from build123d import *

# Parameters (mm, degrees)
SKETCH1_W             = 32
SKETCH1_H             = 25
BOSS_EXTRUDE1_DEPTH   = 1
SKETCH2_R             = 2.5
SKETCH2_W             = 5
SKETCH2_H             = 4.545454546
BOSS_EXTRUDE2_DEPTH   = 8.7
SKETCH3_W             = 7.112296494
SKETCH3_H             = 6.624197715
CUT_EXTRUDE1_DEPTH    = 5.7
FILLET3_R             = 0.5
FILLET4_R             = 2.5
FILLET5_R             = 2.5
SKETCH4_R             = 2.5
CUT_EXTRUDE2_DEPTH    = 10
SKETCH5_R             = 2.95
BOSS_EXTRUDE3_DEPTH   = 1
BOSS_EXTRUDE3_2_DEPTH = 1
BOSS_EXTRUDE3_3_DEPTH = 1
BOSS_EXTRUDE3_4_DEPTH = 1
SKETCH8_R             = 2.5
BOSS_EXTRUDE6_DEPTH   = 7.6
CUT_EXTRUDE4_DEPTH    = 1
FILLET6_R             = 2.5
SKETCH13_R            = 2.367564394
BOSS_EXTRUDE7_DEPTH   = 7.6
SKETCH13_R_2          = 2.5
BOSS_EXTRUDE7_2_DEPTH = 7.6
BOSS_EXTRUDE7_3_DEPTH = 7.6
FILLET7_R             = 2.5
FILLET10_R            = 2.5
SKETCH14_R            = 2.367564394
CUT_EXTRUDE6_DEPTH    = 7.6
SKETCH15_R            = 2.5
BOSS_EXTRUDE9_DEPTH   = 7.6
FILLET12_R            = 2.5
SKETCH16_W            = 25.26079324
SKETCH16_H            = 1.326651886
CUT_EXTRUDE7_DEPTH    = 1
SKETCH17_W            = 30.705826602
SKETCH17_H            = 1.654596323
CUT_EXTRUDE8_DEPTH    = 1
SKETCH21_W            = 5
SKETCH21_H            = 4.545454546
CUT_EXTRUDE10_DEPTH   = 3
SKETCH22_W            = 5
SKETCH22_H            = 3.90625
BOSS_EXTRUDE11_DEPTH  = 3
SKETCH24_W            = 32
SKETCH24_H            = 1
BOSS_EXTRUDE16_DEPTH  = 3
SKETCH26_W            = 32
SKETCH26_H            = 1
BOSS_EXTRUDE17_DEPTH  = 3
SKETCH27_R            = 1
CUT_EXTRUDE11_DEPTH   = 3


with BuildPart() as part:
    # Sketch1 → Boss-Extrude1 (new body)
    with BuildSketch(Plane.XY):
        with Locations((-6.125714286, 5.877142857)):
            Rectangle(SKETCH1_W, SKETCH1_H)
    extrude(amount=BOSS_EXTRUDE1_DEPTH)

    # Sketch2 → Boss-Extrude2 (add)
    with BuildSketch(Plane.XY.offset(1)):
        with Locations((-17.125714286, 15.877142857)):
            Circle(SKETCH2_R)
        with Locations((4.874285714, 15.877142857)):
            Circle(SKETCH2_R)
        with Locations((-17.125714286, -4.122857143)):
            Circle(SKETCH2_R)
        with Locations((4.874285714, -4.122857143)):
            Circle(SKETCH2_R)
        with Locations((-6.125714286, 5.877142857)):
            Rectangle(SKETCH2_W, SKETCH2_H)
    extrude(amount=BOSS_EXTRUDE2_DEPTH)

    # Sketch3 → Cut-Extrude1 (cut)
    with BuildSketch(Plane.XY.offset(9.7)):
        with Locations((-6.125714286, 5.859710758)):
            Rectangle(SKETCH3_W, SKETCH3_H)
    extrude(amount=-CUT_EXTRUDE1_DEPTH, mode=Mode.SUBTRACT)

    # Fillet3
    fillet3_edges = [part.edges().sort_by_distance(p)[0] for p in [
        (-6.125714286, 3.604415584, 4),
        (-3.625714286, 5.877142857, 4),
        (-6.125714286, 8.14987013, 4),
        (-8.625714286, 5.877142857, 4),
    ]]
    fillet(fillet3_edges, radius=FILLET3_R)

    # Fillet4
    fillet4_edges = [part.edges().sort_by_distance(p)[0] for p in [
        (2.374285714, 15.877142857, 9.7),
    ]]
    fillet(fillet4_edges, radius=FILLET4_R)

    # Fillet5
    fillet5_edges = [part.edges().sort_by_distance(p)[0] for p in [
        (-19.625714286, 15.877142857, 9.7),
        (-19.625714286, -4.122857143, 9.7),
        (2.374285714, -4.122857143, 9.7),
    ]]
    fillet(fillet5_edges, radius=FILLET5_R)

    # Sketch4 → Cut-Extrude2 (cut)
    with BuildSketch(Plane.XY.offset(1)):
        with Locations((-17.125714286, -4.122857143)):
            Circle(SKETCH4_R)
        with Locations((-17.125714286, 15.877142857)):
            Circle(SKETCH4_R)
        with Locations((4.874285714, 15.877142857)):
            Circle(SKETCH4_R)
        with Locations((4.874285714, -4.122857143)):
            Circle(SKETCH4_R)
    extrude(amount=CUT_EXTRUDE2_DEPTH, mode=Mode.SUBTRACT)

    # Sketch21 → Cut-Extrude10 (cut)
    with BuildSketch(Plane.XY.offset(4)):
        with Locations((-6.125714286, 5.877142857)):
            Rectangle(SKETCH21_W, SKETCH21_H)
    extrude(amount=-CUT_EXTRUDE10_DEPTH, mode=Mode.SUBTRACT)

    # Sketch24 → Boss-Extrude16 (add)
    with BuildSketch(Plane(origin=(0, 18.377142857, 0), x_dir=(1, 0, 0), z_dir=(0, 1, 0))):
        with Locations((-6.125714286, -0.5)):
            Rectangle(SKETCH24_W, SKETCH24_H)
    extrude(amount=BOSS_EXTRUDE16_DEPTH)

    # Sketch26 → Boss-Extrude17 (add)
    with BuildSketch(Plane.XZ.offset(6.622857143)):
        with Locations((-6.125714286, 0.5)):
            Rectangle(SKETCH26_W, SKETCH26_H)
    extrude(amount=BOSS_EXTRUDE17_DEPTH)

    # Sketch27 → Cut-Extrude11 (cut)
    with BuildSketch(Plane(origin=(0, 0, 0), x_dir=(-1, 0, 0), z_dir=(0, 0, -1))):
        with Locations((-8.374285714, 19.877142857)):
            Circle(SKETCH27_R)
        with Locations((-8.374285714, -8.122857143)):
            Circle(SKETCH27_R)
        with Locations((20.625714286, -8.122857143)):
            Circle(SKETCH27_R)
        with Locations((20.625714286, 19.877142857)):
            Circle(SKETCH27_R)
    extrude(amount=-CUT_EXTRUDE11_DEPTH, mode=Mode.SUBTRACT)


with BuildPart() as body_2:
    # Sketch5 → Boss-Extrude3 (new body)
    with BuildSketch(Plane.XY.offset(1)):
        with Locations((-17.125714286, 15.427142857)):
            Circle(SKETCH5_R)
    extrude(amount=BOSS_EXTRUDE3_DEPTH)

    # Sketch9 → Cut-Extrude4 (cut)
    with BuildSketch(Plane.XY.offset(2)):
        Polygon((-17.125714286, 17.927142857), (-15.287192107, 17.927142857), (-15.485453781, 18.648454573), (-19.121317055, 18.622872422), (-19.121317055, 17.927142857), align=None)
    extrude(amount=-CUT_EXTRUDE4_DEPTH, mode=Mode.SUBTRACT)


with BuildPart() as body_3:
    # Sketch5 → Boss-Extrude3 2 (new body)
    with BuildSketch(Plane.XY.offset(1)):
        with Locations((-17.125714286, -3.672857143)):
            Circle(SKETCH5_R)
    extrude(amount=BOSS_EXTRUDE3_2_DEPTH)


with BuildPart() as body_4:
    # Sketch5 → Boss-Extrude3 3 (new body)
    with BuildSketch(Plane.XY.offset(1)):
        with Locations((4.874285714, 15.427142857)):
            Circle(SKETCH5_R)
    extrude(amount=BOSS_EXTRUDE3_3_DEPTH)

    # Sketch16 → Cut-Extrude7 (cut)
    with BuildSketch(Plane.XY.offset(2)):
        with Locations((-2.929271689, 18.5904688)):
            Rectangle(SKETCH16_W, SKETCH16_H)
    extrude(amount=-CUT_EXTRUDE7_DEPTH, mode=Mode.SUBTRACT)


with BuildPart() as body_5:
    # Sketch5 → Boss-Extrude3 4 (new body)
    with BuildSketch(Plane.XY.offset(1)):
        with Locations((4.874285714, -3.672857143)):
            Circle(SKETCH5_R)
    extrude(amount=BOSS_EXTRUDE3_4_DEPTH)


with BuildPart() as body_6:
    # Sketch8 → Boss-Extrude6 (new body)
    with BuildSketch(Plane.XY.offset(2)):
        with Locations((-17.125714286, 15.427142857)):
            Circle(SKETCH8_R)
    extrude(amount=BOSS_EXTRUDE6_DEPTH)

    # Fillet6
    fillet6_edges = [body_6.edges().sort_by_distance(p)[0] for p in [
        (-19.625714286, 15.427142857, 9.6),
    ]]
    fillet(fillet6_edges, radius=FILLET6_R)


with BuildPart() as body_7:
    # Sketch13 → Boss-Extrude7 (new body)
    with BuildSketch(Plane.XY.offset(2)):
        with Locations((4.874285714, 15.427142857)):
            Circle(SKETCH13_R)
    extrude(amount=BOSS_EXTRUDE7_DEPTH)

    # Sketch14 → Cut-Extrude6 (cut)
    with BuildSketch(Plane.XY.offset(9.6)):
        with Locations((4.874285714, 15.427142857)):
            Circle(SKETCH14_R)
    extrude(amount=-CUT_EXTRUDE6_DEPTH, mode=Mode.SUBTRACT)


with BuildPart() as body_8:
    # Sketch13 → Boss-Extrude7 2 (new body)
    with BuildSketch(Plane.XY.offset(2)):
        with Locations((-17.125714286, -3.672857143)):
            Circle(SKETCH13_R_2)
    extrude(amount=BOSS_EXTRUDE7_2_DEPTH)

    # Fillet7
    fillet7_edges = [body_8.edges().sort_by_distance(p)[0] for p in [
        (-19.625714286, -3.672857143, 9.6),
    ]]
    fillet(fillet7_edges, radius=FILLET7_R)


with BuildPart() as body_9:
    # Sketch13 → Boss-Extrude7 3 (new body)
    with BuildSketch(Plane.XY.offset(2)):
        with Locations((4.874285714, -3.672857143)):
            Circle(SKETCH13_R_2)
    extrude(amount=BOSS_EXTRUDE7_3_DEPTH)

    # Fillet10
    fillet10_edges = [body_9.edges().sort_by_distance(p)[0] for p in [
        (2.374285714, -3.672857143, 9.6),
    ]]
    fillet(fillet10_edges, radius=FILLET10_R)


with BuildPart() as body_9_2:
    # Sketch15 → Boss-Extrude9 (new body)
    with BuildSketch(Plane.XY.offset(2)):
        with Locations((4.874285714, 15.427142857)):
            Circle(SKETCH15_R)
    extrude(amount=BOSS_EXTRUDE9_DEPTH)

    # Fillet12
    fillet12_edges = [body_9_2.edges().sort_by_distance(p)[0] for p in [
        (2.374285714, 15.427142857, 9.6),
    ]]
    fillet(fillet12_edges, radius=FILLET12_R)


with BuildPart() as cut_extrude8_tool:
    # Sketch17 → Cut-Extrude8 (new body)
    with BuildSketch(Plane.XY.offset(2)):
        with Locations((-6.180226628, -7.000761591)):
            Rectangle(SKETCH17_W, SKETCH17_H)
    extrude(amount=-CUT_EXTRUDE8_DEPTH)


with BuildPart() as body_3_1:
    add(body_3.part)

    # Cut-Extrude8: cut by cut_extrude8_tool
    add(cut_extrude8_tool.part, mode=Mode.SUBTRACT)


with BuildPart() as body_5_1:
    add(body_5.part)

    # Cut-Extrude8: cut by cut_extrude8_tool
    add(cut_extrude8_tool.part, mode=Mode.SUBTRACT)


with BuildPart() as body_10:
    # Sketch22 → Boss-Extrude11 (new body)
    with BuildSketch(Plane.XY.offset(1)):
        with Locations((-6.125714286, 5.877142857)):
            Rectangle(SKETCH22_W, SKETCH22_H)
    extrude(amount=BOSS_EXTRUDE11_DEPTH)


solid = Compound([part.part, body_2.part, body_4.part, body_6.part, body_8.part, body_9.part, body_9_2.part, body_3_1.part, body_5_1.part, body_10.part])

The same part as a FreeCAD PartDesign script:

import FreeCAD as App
import Part
import Sketcher

V = App.Vector
Q = App.Units.Quantity


def edges_at(feature, points):
    """Names of the edges that pass closest to the given points."""
    edges = feature.Shape.Edges
    near = lambda p: min(range(len(edges)), key=lambda i: edges[i].distToShape(Part.Vertex(*p))[0])
    return sorted({f"Edge{near(p) + 1}" for p in points})


def add_polygon(sketch, points):
    """Adds a closed chain of lines whose ends are joined by coincident constraints."""
    first, n = sketch.GeometryCount, len(points)
    for a, b in zip(points, points[1:] + points[:1]):
        sketch.addGeometry(Part.LineSegment(App.Vector(*a, 0), App.Vector(*b, 0)), False)
    for i in range(n):
        sketch.addConstraint(Sketcher.Constraint("Coincident", first + i, 2, first + (i + 1) % n, 1))

doc = App.newDocument("Part")
body = doc.addObject("PartDesign::Body", "Body")

sketch1 = body.newObject("Sketcher::SketchObject", "Sketch")
sketch1.AttachmentSupport = (doc.getObject("XY_Plane"), [""])
sketch1.MapMode = "FlatFace"
add_polygon(sketch1, [(-22, 18), (-22, -7), (10, -7), (10, 18)])
sketch1.addConstraint([
    Sketcher.Constraint("Vertical", 0),
    Sketcher.Constraint("Horizontal", 1),
    Sketcher.Constraint("Vertical", 2),
    Sketcher.Constraint("Horizontal", 3),
    Sketcher.Constraint("DistanceX", 1, 1, 1, 2, Q("32 mm")),
    Sketcher.Constraint("DistanceY", 0, 2, 0, 1, Q("25 mm")),
    Sketcher.Constraint("DistanceX", 0, 2, -1, 1, Q("22.125714 mm")),
    Sketcher.Constraint("DistanceY", 0, 2, -1, 1, Q("6.622857 mm")),
])
pad1 = body.newObject("PartDesign::Pad", "Pad")
pad1.Profile = sketch1
pad1.Length = 1

sketch2 = body.newObject("Sketcher::SketchObject", "Sketch001")
sketch2.AttachmentSupport = (doc.getObject("XY_Plane"), [""])
sketch2.MapMode = "FlatFace"
sketch2.AttachmentOffset = App.Placement(V(0, 0, 1), App.Rotation())
sketch2.addGeometry(Part.Circle(V(-17.1, 15.9, 0), V(0, 0, 1), 2.5), False)
sketch2.addGeometry(Part.Circle(V(4.9, 15.9, 0), V(0, 0, 1), 2.5), False)
sketch2.addGeometry(Part.Circle(V(-17.1, -4.1, 0), V(0, 0, 1), 2.5), False)
sketch2.addGeometry(Part.Circle(V(4.9, -4.1, 0), V(0, 0, 1), 2.5), False)
add_polygon(sketch2, [(-8.6, 8.1), (-8.6, 3.6), (-3.6, 3.6), (-3.6, 8.1)])
sketch2.addConstraint([
    Sketcher.Constraint("Vertical", 4),
    Sketcher.Constraint("Horizontal", 5),
    Sketcher.Constraint("Vertical", 6),
    Sketcher.Constraint("Horizontal", 7),
    Sketcher.Constraint("Equal", 0, 1),
    Sketcher.Constraint("Equal", 1, 2),
    Sketcher.Constraint("Equal", 2, 3),
    Sketcher.Constraint("Horizontal", 0, 3, 1, 3),
    Sketcher.Constraint("Horizontal", 2, 3, 3, 3),
    Sketcher.Constraint("Vertical", 0, 3, 2, 3),
    Sketcher.Constraint("Vertical", 1, 3, 3, 3),
    Sketcher.Constraint("Diameter", 0, Q("5 mm")),
    Sketcher.Constraint("DistanceX", 5, 1, 5, 2, Q("5 mm")),
    Sketcher.Constraint("DistanceX", 0, 3, 1, 3, Q("22 mm")),
    Sketcher.Constraint("DistanceY", 2, 3, 0, 3, Q("20 mm")),
    Sketcher.Constraint("DistanceX", 2, 3, 4, 2, Q("8.5 mm")),
    Sketcher.Constraint("DistanceY", 4, 2, 4, 1, Q("4.545455 mm")),
    Sketcher.Constraint("DistanceY", -1, 1, 6, 2, Q("8.14987 mm")),
    Sketcher.Constraint("DistanceX", 0, 3, -1, 1, Q("17.125714 mm")),
    Sketcher.Constraint("DistanceY", -1, 1, 0, 3, Q("15.877143 mm")),
])
pad2 = body.newObject("PartDesign::Pad", "Pad001")
pad2.Profile = sketch2
pad2.Length = 8.7

sketch3 = body.newObject("Sketcher::SketchObject", "Sketch002")
sketch3.AttachmentSupport = (doc.getObject("XY_Plane"), [""])
sketch3.MapMode = "FlatFace"
sketch3.AttachmentOffset = App.Placement(V(0, 0, 9.7), App.Rotation())
add_polygon(sketch3, [(-10, 9), (-10, 3), (-3, 3), (-3, 9)])
sketch3.addConstraint([
    Sketcher.Constraint("Vertical", 0),
    Sketcher.Constraint("Horizontal", 1),
    Sketcher.Constraint("Vertical", 2),
    Sketcher.Constraint("Horizontal", 3),
    Sketcher.Constraint("DistanceX", 1, 1, 1, 2, Q("7.112296 mm")),
    Sketcher.Constraint("DistanceY", 0, 2, 0, 1, Q("6.624198 mm")),
    Sketcher.Constraint("DistanceY", -1, 1, 0, 2, Q("2.547612 mm")),
    Sketcher.Constraint("DistanceX", 0, 2, -1, 1, Q("9.681863 mm")),
])
pocket1 = body.newObject("PartDesign::Pocket", "Pocket")
pocket1.Profile = sketch3
pocket1.Length = 5.7
doc.recompute()

fillet = body.newObject("PartDesign::Fillet", "Fillet")
fillet.Base = (pocket1, edges_at(pocket1, [
    (-6.126, 3.604, 4),
    (-3.626, 5.877, 4),
    (-6.126, 8.15, 4),
    (-8.626, 5.877, 4),
]))
fillet.Radius = 0.5
doc.recompute()

fillet2 = body.newObject("PartDesign::Fillet", "Fillet001")
fillet2.Base = (fillet, edges_at(fillet, [(2.374, 15.877, 9.7)]))
fillet2.Radius = 2.5
doc.recompute()

fillet3 = body.newObject("PartDesign::Fillet", "Fillet002")
fillet3.Base = (fillet2, edges_at(fillet2, [(-19.626, 15.877, 9.7), (-19.626, -4.123, 9.7), (2.374, -4.123, 9.7)]))
fillet3.Radius = 2.5

sketch4 = body.newObject("Sketcher::SketchObject", "Sketch003")
sketch4.AttachmentSupport = (doc.getObject("XY_Plane"), [""])
sketch4.MapMode = "FlatFace"
sketch4.AttachmentOffset = App.Placement(V(0, 0, 1), App.Rotation())
sketch4.addGeometry([
    Part.Circle(V(-17.1, -4.1, 0), V(0, 0, 1), 2.5),
    Part.Circle(V(-17.1, 15.9, 0), V(0, 0, 1), 2.5),
    Part.Circle(V(4.9, 15.9, 0), V(0, 0, 1), 2.5),
    Part.Circle(V(4.9, -4.1, 0), V(0, 0, 1), 2.5),
], False)
sketch4.addConstraint([
    Sketcher.Constraint("Equal", 0, 1),
    Sketcher.Constraint("Equal", 1, 2),
    Sketcher.Constraint("Equal", 2, 3),
    Sketcher.Constraint("Horizontal", 1, 3, 2, 3),
    Sketcher.Constraint("Horizontal", 0, 3, 3, 3),
    Sketcher.Constraint("Vertical", 0, 3, 1, 3),
    Sketcher.Constraint("Vertical", 2, 3, 3, 3),
    Sketcher.Constraint("Diameter", 0, Q("5 mm")),
    Sketcher.Constraint("DistanceY", 0, 3, 1, 3, Q("20 mm")),
    Sketcher.Constraint("DistanceX", 1, 3, 2, 3, Q("22 mm")),
    Sketcher.Constraint("DistanceX", 0, 3, -1, 1, Q("17.125714 mm")),
    Sketcher.Constraint("DistanceY", 0, 3, -1, 1, Q("4.122857 mm")),
])
pocket2 = body.newObject("PartDesign::Pocket", "Pocket001")
pocket2.Profile = sketch4
pocket2.Length = 10
pocket2.Reversed = True

sketch5 = body.newObject("Sketcher::SketchObject", "Sketch004")
sketch5.AttachmentSupport = (doc.getObject("XY_Plane"), [""])
sketch5.MapMode = "FlatFace"
sketch5.AttachmentOffset = App.Placement(V(0, 0, 4), App.Rotation())
add_polygon(sketch5, [(-8.6, 8.1), (-8.6, 3.6), (-3.6, 3.6), (-3.6, 8.1)])
sketch5.addConstraint([
    Sketcher.Constraint("Vertical", 0),
    Sketcher.Constraint("Horizontal", 1),
    Sketcher.Constraint("Vertical", 2),
    Sketcher.Constraint("Horizontal", 3),
    Sketcher.Constraint("DistanceX", 1, 1, 1, 2, Q("5 mm")),
    Sketcher.Constraint("DistanceY", 0, 2, 0, 1, Q("4.545455 mm")),
    Sketcher.Constraint("DistanceY", -1, 1, 2, 2, Q("8.14987 mm")),
    Sketcher.Constraint("DistanceX", 0, 2, -1, 1, Q("8.625714 mm")),
])
pocket3 = body.newObject("PartDesign::Pocket", "Pocket002")
pocket3.Profile = sketch5
pocket3.Length = 3

sketch6 = body.newObject("Sketcher::SketchObject", "Sketch005")
sketch6.AttachmentSupport = (doc.getObject("XZ_Plane"), [""])
sketch6.MapMode = "FlatFace"
sketch6.AttachmentOffset = App.Placement(V(0, 0, -18.377143), App.Rotation())
add_polygon(sketch6, [(-22.1, 0), (-22.1, 1), (9.9, 1), (9.9, 0)])
sketch6.addConstraint([
    Sketcher.Constraint("Vertical", 0),
    Sketcher.Constraint("Horizontal", 1),
    Sketcher.Constraint("Vertical", 2),
    Sketcher.Constraint("Horizontal", 3),
    Sketcher.Constraint("PointOnObject", 2, 2, -1),
    Sketcher.Constraint("DistanceX", 1, 1, 1, 2, Q("32 mm")),
    Sketcher.Constraint("DistanceY", 0, 1, 0, 2, Q("1 mm")),
    Sketcher.Constraint("DistanceX", 0, 2, -1, 1, Q("22.125714 mm")),
])
pad3 = body.newObject("PartDesign::Pad", "Pad002")
pad3.Profile = sketch6
pad3.Length = 3
pad3.Reversed = True

sketch7 = body.newObject("Sketcher::SketchObject", "Sketch006")
sketch7.AttachmentSupport = (doc.getObject("XZ_Plane"), [""])
sketch7.MapMode = "FlatFace"
sketch7.AttachmentOffset = App.Placement(V(0, 0, 6.622857), App.Rotation())
add_polygon(sketch7, [(-22.1, 1), (-22.1, 0), (9.9, 0), (9.9, 1)])
sketch7.addConstraint([
    Sketcher.Constraint("Vertical", 0),
    Sketcher.Constraint("Horizontal", 1),
    Sketcher.Constraint("Vertical", 2),
    Sketcher.Constraint("Horizontal", 3),
    Sketcher.Constraint("PointOnObject", 0, 2, -1),
    Sketcher.Constraint("DistanceX", 1, 1, 1, 2, Q("32 mm")),
    Sketcher.Constraint("DistanceY", 0, 2, 0, 1, Q("1 mm")),
    Sketcher.Constraint("DistanceX", 0, 2, -1, 1, Q("22.125714 mm")),
])
pad4 = body.newObject("PartDesign::Pad", "Pad003")
pad4.Profile = sketch7
pad4.Length = 3

sketch8 = body.newObject("Sketcher::SketchObject", "Sketch007")
sketch8.AttachmentSupport = (doc.getObject("XY_Plane"), [""])
sketch8.MapMode = "FlatFace"
sketch8.addGeometry([
    Part.Circle(V(8.4, 19.9, 0), V(0, 0, 1), 1),
    Part.Circle(V(8.4, -8.1, 0), V(0, 0, 1), 1),
    Part.Circle(V(-20.6, -8.1, 0), V(0, 0, 1), 1),
    Part.Circle(V(-20.6, 19.9, 0), V(0, 0, 1), 1),
], False)
sketch8.addConstraint([
    Sketcher.Constraint("Equal", 0, 1),
    Sketcher.Constraint("Equal", 1, 2),
    Sketcher.Constraint("Equal", 2, 3),
    Sketcher.Constraint("Horizontal", 1, 3, 2, 3),
    Sketcher.Constraint("Horizontal", 0, 3, 3, 3),
    Sketcher.Constraint("Vertical", 0, 3, 1, 3),
    Sketcher.Constraint("Vertical", 2, 3, 3, 3),
    Sketcher.Constraint("Diameter", 0, Q("2 mm")),
    Sketcher.Constraint("DistanceY", 1, 3, 0, 3, Q("28 mm")),
    Sketcher.Constraint("DistanceX", 2, 3, 1, 3, Q("29 mm")),
    Sketcher.Constraint("DistanceX", -1, 1, 0, 3, Q("8.374286 mm")),
    Sketcher.Constraint("DistanceY", -1, 1, 0, 3, Q("19.877143 mm")),
])
pocket4 = body.newObject("PartDesign::Pocket", "Pocket003")
pocket4.Profile = sketch8
pocket4.Length = 3
pocket4.Reversed = True
body2 = doc.addObject("PartDesign::Body", "Body001")

sketch9 = body2.newObject("Sketcher::SketchObject", "Sketch008")
sketch9.AttachmentSupport = (doc.getObject("XY_Plane001"), [""])
sketch9.MapMode = "FlatFace"
sketch9.AttachmentOffset = App.Placement(V(0, 0, 1), App.Rotation())
sketch9.addGeometry(Part.Circle(V(-17.1, 15.4, 0), V(0, 0, 1), 3), False)
sketch9.addConstraint([
    Sketcher.Constraint("Diameter", 0, Q("5.9 mm")),
    Sketcher.Constraint("DistanceX", 0, 3, -1, 1, Q("17.125714 mm")),
    Sketcher.Constraint("DistanceY", -1, 1, 0, 3, Q("15.427143 mm")),
])
pad5 = body2.newObject("PartDesign::Pad", "Pad004")
pad5.Profile = sketch9
pad5.Length = 1

sketch10 = body2.newObject("Sketcher::SketchObject", "Sketch009")
sketch10.AttachmentSupport = (doc.getObject("XY_Plane001"), [""])
sketch10.MapMode = "FlatFace"
sketch10.AttachmentOffset = App.Placement(V(0, 0, 2), App.Rotation())
add_polygon(sketch10, [(-15.3, 17.9), (-15.5, 18.6), (-19.1, 18.6), (-19.1, 17.9)])
sketch10.addConstraint([
    Sketcher.Constraint("Vertical", 2),
    Sketcher.Constraint("Horizontal", 3),
    Sketcher.Constraint("DistanceY", 2, 2, 2, 1, Q("0.69573 mm")),
    Sketcher.Constraint("DistanceX", 3, 1, 3, 2, Q("3.834125 mm")),
    Sketcher.Constraint("DistanceY", 2, 2, 0, 2, Q("0.721312 mm")),
    Sketcher.Constraint("DistanceX", 0, 2, 3, 2, Q("0.198262 mm")),
    Sketcher.Constraint("DistanceX", 0, 2, -1, 1, Q("15.485454 mm")),
    Sketcher.Constraint("DistanceY", -1, 1, 0, 2, Q("18.648455 mm")),
])
pocket5 = body2.newObject("PartDesign::Pocket", "Pocket004")
pocket5.Profile = sketch10
pocket5.Length = 1
body3 = doc.addObject("PartDesign::Body", "Body002")

sketch11 = body3.newObject("Sketcher::SketchObject", "Sketch010")
sketch11.AttachmentSupport = (doc.getObject("XY_Plane002"), [""])
sketch11.MapMode = "FlatFace"
sketch11.AttachmentOffset = App.Placement(V(0, 0, 1), App.Rotation())
sketch11.addGeometry(Part.Circle(V(-17.1, -3.7, 0), V(0, 0, 1), 3), False)
sketch11.addConstraint([
    Sketcher.Constraint("Diameter", 0, Q("5.9 mm")),
    Sketcher.Constraint("DistanceX", 0, 3, -1, 1, Q("17.125714 mm")),
    Sketcher.Constraint("DistanceY", 0, 3, -1, 1, Q("3.672857 mm")),
])
pad6 = body3.newObject("PartDesign::Pad", "Pad005")
pad6.Profile = sketch11
pad6.Length = 1
body4 = doc.addObject("PartDesign::Body", "Body003")

sketch12 = body4.newObject("Sketcher::SketchObject", "Sketch011")
sketch12.AttachmentSupport = (doc.getObject("XY_Plane003"), [""])
sketch12.MapMode = "FlatFace"
sketch12.AttachmentOffset = App.Placement(V(0, 0, 1), App.Rotation())
sketch12.addGeometry(Part.Circle(V(4.9, 15.4, 0), V(0, 0, 1), 3), False)
sketch12.addConstraint([
    Sketcher.Constraint("Diameter", 0, Q("5.9 mm")),
    Sketcher.Constraint("DistanceX", -1, 1, 0, 3, Q("4.874286 mm")),
    Sketcher.Constraint("DistanceY", -1, 1, 0, 3, Q("15.427143 mm")),
])
pad7 = body4.newObject("PartDesign::Pad", "Pad006")
pad7.Profile = sketch12
pad7.Length = 1

sketch13 = body4.newObject("Sketcher::SketchObject", "Sketch012")
sketch13.AttachmentSupport = (doc.getObject("XY_Plane003"), [""])
sketch13.MapMode = "FlatFace"
sketch13.AttachmentOffset = App.Placement(V(0, 0, 2), App.Rotation())
add_polygon(sketch13, [(-15.6, 19.3), (-15.6, 17.9), (9.7, 17.9), (9.7, 19.3)])
sketch13.addConstraint([
    Sketcher.Constraint("Vertical", 0),
    Sketcher.Constraint("Horizontal", 1),
    Sketcher.Constraint("Vertical", 2),
    Sketcher.Constraint("Horizontal", 3),
    Sketcher.Constraint("DistanceY", 0, 2, 0, 1, Q("1.326652 mm")),
    Sketcher.Constraint("DistanceX", 1, 1, 1, 2, Q("25.260793 mm")),
    Sketcher.Constraint("DistanceX", 0, 2, -1, 1, Q("15.559668 mm")),
    Sketcher.Constraint("DistanceY", -1, 1, 0, 2, Q("17.927143 mm")),
])
pocket6 = body4.newObject("PartDesign::Pocket", "Pocket005")
pocket6.Profile = sketch13
pocket6.Length = 1
body5 = doc.addObject("PartDesign::Body", "Body004")

sketch14 = body5.newObject("Sketcher::SketchObject", "Sketch013")
sketch14.AttachmentSupport = (doc.getObject("XY_Plane004"), [""])
sketch14.MapMode = "FlatFace"
sketch14.AttachmentOffset = App.Placement(V(0, 0, 1), App.Rotation())
sketch14.addGeometry(Part.Circle(V(4.9, -3.7, 0), V(0, 0, 1), 3), False)
sketch14.addConstraint([
    Sketcher.Constraint("Diameter", 0, Q("5.9 mm")),
    Sketcher.Constraint("DistanceX", -1, 1, 0, 3, Q("4.874286 mm")),
    Sketcher.Constraint("DistanceY", 0, 3, -1, 1, Q("3.672857 mm")),
])
pad8 = body5.newObject("PartDesign::Pad", "Pad007")
pad8.Profile = sketch14
pad8.Length = 1
body6 = doc.addObject("PartDesign::Body", "Body005")

sketch15 = body6.newObject("Sketcher::SketchObject", "Sketch014")
sketch15.AttachmentSupport = (doc.getObject("XY_Plane005"), [""])
sketch15.MapMode = "FlatFace"
sketch15.AttachmentOffset = App.Placement(V(0, 0, 2), App.Rotation())
sketch15.addGeometry(Part.Circle(V(-17.1, 15.4, 0), V(0, 0, 1), 2.5), False)
sketch15.addConstraint([
    Sketcher.Constraint("Diameter", 0, Q("5 mm")),
    Sketcher.Constraint("DistanceX", 0, 3, -1, 1, Q("17.125714 mm")),
    Sketcher.Constraint("DistanceY", -1, 1, 0, 3, Q("15.427143 mm")),
])
pad9 = body6.newObject("PartDesign::Pad", "Pad008")
pad9.Profile = sketch15
pad9.Length = 7.6
doc.recompute()

fillet4 = body6.newObject("PartDesign::Fillet", "Fillet003")
fillet4.Base = (pad9, edges_at(pad9, [(-19.626, 15.427, 9.6)]))
fillet4.Radius = 2.5
body7 = doc.addObject("PartDesign::Body", "Body006")

sketch16 = body7.newObject("Sketcher::SketchObject", "Sketch015")
sketch16.AttachmentSupport = (doc.getObject("XY_Plane006"), [""])
sketch16.MapMode = "FlatFace"
sketch16.AttachmentOffset = App.Placement(V(0, 0, 2), App.Rotation())
sketch16.addGeometry(Part.Circle(V(4.9, 15.4, 0), V(0, 0, 1), 2.4), False)
sketch16.addConstraint([
    Sketcher.Constraint("Diameter", 0, Q("4.735129 mm")),
    Sketcher.Constraint("DistanceX", -1, 1, 0, 3, Q("4.874286 mm")),
    Sketcher.Constraint("DistanceY", -1, 1, 0, 3, Q("15.427143 mm")),
])
pad10 = body7.newObject("PartDesign::Pad", "Pad009")
pad10.Profile = sketch16
pad10.Length = 7.6

sketch17 = body7.newObject("Sketcher::SketchObject", "Sketch016")
sketch17.AttachmentSupport = (doc.getObject("XY_Plane006"), [""])
sketch17.MapMode = "FlatFace"
sketch17.AttachmentOffset = App.Placement(V(0, 0, 9.6), App.Rotation())
sketch17.addGeometry(Part.Circle(V(4.9, 15.4, 0), V(0, 0, 1), 2.4), False)
sketch17.addConstraint([
    Sketcher.Constraint("Diameter", 0, Q("4.735129 mm")),
    Sketcher.Constraint("DistanceX", -1, 1, 0, 3, Q("4.874286 mm")),
    Sketcher.Constraint("DistanceY", -1, 1, 0, 3, Q("15.427143 mm")),
])
pocket7 = body7.newObject("PartDesign::Pocket", "Pocket006")
pocket7.Profile = sketch17
pocket7.Length = 7.6
body8 = doc.addObject("PartDesign::Body", "Body007")

sketch18 = body8.newObject("Sketcher::SketchObject", "Sketch017")
sketch18.AttachmentSupport = (doc.getObject("XY_Plane007"), [""])
sketch18.MapMode = "FlatFace"
sketch18.AttachmentOffset = App.Placement(V(0, 0, 2), App.Rotation())
sketch18.addGeometry(Part.Circle(V(-17.1, -3.7, 0), V(0, 0, 1), 2.5), False)
sketch18.addConstraint([
    Sketcher.Constraint("Diameter", 0, Q("5 mm")),
    Sketcher.Constraint("DistanceX", 0, 3, -1, 1, Q("17.125714 mm")),
    Sketcher.Constraint("DistanceY", 0, 3, -1, 1, Q("3.672857 mm")),
])
pad11 = body8.newObject("PartDesign::Pad", "Pad010")
pad11.Profile = sketch18
pad11.Length = 7.6
doc.recompute()

fillet5 = body8.newObject("PartDesign::Fillet", "Fillet004")
fillet5.Base = (pad11, edges_at(pad11, [(-19.626, -3.673, 9.6)]))
fillet5.Radius = 2.5
body9 = doc.addObject("PartDesign::Body", "Body008")

sketch19 = body9.newObject("Sketcher::SketchObject", "Sketch018")
sketch19.AttachmentSupport = (doc.getObject("XY_Plane008"), [""])
sketch19.MapMode = "FlatFace"
sketch19.AttachmentOffset = App.Placement(V(0, 0, 2), App.Rotation())
sketch19.addGeometry(Part.Circle(V(4.9, -3.7, 0), V(0, 0, 1), 2.5), False)
sketch19.addConstraint([
    Sketcher.Constraint("Diameter", 0, Q("5 mm")),
    Sketcher.Constraint("DistanceX", -1, 1, 0, 3, Q("4.874286 mm")),
    Sketcher.Constraint("DistanceY", 0, 3, -1, 1, Q("3.672857 mm")),
])
pad12 = body9.newObject("PartDesign::Pad", "Pad011")
pad12.Profile = sketch19
pad12.Length = 7.6
doc.recompute()

fillet6 = body9.newObject("PartDesign::Fillet", "Fillet005")
fillet6.Base = (pad12, edges_at(pad12, [(2.374, -3.673, 9.6)]))
fillet6.Radius = 2.5
body10 = doc.addObject("PartDesign::Body", "Body009")

sketch20 = body10.newObject("Sketcher::SketchObject", "Sketch019")
sketch20.AttachmentSupport = (doc.getObject("XY_Plane009"), [""])
sketch20.MapMode = "FlatFace"
sketch20.AttachmentOffset = App.Placement(V(0, 0, 2), App.Rotation())
sketch20.addGeometry(Part.Circle(V(4.9, 15.4, 0), V(0, 0, 1), 2.5), False)
sketch20.addConstraint([
    Sketcher.Constraint("Diameter", 0, Q("5 mm")),
    Sketcher.Constraint("DistanceX", -1, 1, 0, 3, Q("4.874286 mm")),
    Sketcher.Constraint("DistanceY", -1, 1, 0, 3, Q("15.427143 mm")),
])
pad13 = body10.newObject("PartDesign::Pad", "Pad012")
pad13.Profile = sketch20
pad13.Length = 7.6
doc.recompute()

fillet7 = body10.newObject("PartDesign::Fillet", "Fillet006")
fillet7.Base = (pad13, edges_at(pad13, [(2.374, 15.427, 9.6)]))
fillet7.Radius = 2.5
body11 = doc.addObject("PartDesign::Body", "Body010")

sketch21 = body11.newObject("Sketcher::SketchObject", "Sketch020")
sketch21.AttachmentSupport = (doc.getObject("XY_Plane010"), [""])
sketch21.MapMode = "FlatFace"
sketch21.AttachmentOffset = App.Placement(V(0, 0, 2), App.Rotation())
add_polygon(sketch21, [(-21.5, -6.2), (-21.5, -7.8), (9.2, -7.8), (9.2, -6.2)])
sketch21.addConstraint([
    Sketcher.Constraint("Vertical", 0),
    Sketcher.Constraint("Horizontal", 1),
    Sketcher.Constraint("Vertical", 2),
    Sketcher.Constraint("Horizontal", 3),
    Sketcher.Constraint("DistanceX", 1, 1, 1, 2, Q("30.705827 mm")),
    Sketcher.Constraint("DistanceY", 0, 2, 0, 1, Q("1.654596 mm")),
    Sketcher.Constraint("DistanceX", 0, 2, -1, 1, Q("21.53314 mm")),
    Sketcher.Constraint("DistanceY", 0, 2, -1, 1, Q("7.82806 mm")),
])
pad14 = body11.newObject("PartDesign::Pad", "Pad013")
pad14.Profile = sketch21
pad14.Length = 1
pad14.Reversed = True
doc.recompute()

body12 = doc.addObject("PartDesign::Body", "Body011")
body12.BaseFeature = body11
boolean = body3.newObject("PartDesign::Boolean", "Boolean")
boolean.Type = "Cut"
boolean.addObjects([body12])
doc.recompute()

boolean2 = body5.newObject("PartDesign::Boolean", "Boolean001")
boolean2.Type = "Cut"
boolean2.addObjects([body11])
body13 = doc.addObject("PartDesign::Body", "Body012")

sketch22 = body13.newObject("Sketcher::SketchObject", "Sketch021")
sketch22.AttachmentSupport = (doc.getObject("XY_Plane012"), [""])
sketch22.MapMode = "FlatFace"
sketch22.AttachmentOffset = App.Placement(V(0, 0, 1), App.Rotation())
add_polygon(sketch22, [(-8.6, 7.8), (-8.6, 3.9), (-3.6, 3.9), (-3.6, 7.8)])
sketch22.addConstraint([
    Sketcher.Constraint("Vertical", 0),
    Sketcher.Constraint("Horizontal", 1),
    Sketcher.Constraint("Vertical", 2),
    Sketcher.Constraint("Horizontal", 3),
    Sketcher.Constraint("DistanceX", 1, 1, 1, 2, Q("5 mm")),
    Sketcher.Constraint("DistanceY", 0, 2, 0, 1, Q("3.90625 mm")),
    Sketcher.Constraint("DistanceX", 0, 2, -1, 1, Q("8.625714 mm")),
    Sketcher.Constraint("DistanceY", -1, 1, 0, 2, Q("3.924018 mm")),
])
pad15 = body13.newObject("PartDesign::Pad", "Pad014")
pad15.Profile = sketch22
pad15.Length = 3

doc.recompute()
